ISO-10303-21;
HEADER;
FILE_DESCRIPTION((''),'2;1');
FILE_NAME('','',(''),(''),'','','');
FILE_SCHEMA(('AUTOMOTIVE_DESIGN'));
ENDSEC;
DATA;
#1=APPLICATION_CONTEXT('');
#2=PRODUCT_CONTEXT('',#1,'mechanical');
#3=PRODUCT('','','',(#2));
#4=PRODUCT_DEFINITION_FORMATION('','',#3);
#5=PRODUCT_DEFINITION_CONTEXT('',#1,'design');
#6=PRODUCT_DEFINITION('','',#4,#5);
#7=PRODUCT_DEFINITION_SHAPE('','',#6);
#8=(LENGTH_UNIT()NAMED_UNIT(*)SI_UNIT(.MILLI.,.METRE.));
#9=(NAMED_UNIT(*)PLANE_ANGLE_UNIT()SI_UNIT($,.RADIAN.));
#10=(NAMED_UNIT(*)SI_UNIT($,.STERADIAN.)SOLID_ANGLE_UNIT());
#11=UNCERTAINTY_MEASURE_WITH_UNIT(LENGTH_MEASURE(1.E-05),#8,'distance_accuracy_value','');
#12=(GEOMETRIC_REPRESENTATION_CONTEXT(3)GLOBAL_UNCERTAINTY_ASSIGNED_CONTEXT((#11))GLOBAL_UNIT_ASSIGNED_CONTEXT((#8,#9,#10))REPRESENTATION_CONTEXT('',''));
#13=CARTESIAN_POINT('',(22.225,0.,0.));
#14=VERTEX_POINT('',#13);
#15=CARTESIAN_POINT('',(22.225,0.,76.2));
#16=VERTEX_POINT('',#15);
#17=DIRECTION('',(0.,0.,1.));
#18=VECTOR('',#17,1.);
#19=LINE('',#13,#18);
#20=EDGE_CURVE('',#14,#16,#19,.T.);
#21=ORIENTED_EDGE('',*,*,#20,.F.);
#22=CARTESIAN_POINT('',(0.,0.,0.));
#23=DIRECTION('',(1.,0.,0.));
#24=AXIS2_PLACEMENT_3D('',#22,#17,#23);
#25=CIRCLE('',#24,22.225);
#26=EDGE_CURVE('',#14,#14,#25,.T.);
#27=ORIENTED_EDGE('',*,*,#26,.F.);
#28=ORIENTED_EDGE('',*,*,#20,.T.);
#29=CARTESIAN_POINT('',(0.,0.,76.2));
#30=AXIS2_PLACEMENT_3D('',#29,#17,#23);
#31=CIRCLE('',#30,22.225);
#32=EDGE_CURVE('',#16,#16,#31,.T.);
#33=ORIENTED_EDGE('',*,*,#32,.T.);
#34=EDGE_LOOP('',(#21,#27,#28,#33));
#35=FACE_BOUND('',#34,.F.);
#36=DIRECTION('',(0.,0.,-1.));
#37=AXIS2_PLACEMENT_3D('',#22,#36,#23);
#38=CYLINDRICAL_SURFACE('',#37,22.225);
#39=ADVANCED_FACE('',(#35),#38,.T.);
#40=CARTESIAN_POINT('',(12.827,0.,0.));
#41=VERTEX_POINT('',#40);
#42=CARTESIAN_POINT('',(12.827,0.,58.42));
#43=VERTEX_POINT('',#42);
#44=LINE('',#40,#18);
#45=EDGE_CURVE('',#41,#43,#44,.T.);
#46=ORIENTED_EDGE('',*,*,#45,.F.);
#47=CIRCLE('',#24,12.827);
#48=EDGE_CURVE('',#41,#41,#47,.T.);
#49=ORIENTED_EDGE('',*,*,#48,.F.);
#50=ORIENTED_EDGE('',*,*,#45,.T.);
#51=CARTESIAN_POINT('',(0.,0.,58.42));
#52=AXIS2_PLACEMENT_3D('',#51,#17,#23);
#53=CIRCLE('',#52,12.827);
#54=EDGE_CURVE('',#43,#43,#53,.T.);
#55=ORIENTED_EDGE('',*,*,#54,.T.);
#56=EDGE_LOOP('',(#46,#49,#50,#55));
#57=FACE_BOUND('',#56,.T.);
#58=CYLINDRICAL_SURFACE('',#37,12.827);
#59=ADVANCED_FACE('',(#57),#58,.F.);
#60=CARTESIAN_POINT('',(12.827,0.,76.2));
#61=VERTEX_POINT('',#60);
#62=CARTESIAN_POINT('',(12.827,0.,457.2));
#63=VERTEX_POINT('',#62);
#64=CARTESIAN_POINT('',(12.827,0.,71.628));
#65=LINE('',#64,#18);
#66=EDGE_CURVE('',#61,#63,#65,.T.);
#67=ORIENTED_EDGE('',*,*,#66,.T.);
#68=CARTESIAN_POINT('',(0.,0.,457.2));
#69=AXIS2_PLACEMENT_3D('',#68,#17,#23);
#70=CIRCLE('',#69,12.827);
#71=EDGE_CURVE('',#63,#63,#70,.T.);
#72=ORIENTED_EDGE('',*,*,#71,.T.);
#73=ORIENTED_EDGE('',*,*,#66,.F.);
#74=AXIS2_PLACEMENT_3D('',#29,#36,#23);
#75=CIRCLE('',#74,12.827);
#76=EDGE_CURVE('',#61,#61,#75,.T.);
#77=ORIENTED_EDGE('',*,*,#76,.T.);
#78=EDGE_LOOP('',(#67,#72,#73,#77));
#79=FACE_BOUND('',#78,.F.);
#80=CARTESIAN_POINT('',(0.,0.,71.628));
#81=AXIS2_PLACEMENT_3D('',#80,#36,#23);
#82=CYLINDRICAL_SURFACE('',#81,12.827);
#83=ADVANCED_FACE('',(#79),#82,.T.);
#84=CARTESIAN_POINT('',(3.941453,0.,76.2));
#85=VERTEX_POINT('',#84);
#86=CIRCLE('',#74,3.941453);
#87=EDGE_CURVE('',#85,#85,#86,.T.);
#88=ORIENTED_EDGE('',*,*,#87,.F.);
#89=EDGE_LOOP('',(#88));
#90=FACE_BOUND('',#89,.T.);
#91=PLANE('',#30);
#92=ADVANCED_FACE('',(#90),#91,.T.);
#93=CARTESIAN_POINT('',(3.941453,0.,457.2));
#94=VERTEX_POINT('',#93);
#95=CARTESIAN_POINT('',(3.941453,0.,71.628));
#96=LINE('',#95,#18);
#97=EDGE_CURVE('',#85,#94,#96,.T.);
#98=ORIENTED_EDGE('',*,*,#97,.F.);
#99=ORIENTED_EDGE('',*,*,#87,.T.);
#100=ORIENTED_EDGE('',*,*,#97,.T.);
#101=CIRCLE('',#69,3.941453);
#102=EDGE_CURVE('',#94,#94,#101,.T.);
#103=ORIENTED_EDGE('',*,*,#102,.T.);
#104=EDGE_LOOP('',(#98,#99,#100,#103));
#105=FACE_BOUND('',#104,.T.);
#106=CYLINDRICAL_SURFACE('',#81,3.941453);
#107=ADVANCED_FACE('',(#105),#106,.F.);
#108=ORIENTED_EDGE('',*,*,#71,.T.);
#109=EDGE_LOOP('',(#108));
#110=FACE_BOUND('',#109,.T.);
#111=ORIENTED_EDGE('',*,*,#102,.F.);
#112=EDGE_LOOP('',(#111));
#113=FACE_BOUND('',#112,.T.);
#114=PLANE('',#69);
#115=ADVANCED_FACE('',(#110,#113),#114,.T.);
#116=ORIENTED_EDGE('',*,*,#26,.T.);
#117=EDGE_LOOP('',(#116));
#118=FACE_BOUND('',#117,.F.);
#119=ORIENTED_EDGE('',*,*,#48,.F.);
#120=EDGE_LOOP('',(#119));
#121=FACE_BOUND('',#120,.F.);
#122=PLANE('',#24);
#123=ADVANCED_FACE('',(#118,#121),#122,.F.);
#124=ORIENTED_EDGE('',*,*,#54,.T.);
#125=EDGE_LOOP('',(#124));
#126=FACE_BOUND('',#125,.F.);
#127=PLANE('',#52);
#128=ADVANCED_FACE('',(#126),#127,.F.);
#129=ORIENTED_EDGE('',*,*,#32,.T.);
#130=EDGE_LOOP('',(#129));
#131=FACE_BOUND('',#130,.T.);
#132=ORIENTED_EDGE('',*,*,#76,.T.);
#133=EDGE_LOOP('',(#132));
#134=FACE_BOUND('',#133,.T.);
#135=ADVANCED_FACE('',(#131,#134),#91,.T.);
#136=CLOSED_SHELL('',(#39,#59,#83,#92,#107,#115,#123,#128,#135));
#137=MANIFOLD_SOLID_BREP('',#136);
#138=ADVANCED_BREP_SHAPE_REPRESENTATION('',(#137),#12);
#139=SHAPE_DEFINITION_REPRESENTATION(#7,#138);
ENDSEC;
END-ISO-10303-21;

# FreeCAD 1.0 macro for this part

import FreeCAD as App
import Part
import Sketcher
from FreeCAD import Vector
Q = App.Units.Quantity

doc = App.newDocument("Part")
body = doc.addObject("PartDesign::Body", "Body")

sketch1 = body.newObject("Sketcher::SketchObject", "Sketch")
sketch1.AttachmentSupport = (doc.getObject("XY_Plane"), [""])
sketch1.MapMode = "FlatFace"
sketch1.addGeometry(Part.Circle(Vector(0, 0, 0), Vector(0, 0, 1), 22), False)
sketch1.addConstraint([
    Sketcher.Constraint("Coincident", 0, 3, -1, 1),
    Sketcher.Constraint("Diameter", 0, Q("1.75 in")),
])
pad1 = body.newObject("PartDesign::Pad", "Pad")
pad1.Profile = sketch1
pad1.Length = Q("3 in")

sketch2 = body.newObject("Sketcher::SketchObject", "Sketch001")
sketch2.AttachmentSupport = (doc.getObject("XY_Plane"), [""])
sketch2.MapMode = "FlatFace"
sketch2.addGeometry(Part.Circle(Vector(0, 0, 0), Vector(0, 0, 1), 13), False)
sketch2.addConstraint([
    Sketcher.Constraint("Coincident", 0, 3, -1, 1),
    Sketcher.Constraint("Diameter", 0, Q("1.01 in")),
])
pocket1 = body.newObject("PartDesign::Pocket", "Pocket")
pocket1.Profile = sketch2
pocket1.Length = Q("2.3 in")
pocket1.Reversed = True

sketch3 = body.newObject("Sketcher::SketchObject", "Sketch002")
sketch3.AttachmentSupport = (doc.getObject("XY_Plane"), [""])
sketch3.MapMode = "FlatFace"
sketch3.AttachmentOffset = App.Placement(Vector(0, 0, 2.82 * 25.4), App.Rotation())
sketch3.addGeometry([
    Part.Circle(Vector(0, 0, 0), Vector(0, 0, 1), 12.8),
    Part.Circle(Vector(0, 0, 0), Vector(0, 0, 1), 3.9),
], False)
sketch3.addConstraint([
    Sketcher.Constraint("Coincident", 0, 3, -1, 1),
    Sketcher.Constraint("Coincident", 1, 3, -1, 1),
    Sketcher.Constraint("Diameter", 0, Q("1.01 in")),
    Sketcher.Constraint("Diameter", 1, Q("7.882905 mm")),
])
pad2 = body.newObject("PartDesign::Pad", "Pad001")
pad2.Profile = sketch3
pad2.Length = Q("15.18 in")

doc.recompute()
